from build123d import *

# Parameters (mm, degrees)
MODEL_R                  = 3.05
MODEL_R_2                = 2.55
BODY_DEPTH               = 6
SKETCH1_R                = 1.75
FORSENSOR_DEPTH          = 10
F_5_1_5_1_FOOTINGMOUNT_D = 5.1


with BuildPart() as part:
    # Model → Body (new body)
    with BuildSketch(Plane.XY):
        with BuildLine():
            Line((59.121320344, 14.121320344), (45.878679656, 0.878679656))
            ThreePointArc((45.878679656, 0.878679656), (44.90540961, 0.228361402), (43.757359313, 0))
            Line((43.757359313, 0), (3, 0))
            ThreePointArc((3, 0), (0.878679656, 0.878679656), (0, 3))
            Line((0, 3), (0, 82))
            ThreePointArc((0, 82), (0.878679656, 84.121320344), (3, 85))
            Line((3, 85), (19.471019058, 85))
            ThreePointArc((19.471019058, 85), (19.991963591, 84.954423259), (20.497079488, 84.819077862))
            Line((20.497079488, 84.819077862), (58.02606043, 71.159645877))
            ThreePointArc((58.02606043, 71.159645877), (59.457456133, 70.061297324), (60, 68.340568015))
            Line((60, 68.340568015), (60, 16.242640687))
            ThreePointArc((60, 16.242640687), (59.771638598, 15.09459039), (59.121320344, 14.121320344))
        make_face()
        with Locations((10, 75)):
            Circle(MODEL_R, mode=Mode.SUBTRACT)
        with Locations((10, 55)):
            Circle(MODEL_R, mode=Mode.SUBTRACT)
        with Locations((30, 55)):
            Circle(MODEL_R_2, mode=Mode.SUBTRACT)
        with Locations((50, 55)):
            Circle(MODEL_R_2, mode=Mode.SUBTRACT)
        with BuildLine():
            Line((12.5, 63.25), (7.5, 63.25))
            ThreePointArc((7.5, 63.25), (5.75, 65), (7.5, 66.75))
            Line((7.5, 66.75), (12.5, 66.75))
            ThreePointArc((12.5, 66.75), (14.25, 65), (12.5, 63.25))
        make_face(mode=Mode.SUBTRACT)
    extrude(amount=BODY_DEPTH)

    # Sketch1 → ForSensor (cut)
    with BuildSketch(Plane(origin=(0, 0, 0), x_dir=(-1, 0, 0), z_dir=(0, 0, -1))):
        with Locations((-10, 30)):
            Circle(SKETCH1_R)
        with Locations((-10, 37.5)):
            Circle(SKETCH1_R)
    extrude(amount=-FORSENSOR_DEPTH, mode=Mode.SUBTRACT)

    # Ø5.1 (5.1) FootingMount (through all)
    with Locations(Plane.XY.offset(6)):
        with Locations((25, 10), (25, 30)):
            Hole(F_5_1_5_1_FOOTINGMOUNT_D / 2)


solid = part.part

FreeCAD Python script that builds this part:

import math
import FreeCAD as App
import Part
import Sketcher
from FreeCAD import Vector
Q = App.Units.Quantity

doc = App.newDocument("Part")
body = doc.addObject("PartDesign::Body", "Body")

sketch1 = body.newObject("Sketcher::SketchObject", "Sketch")
sketch1.AttachmentSupport = (doc.getObject("XY_Plane"), [""])
sketch1.MapMode = "FlatFace"
sketch1.addGeometry([
    Part.LineSegment(Vector(45.9, 0.9, 0), Vector(59.1, 14.1, 0)),
    Part.ArcOfCircle(Part.Circle(Vector(57, 16.2, 0), Vector(0, 0, 1), 3), math.radians(-45), math.radians(0)),
    Part.LineSegment(Vector(60, 16.2, 0), Vector(60, 68.3, 0)),
    Part.ArcOfCircle(Part.Circle(Vector(57, 68.3, 0), Vector(0, 0, 1), 3), math.radians(0), math.radians(70)),
    Part.LineSegment(Vector(58, 71.2, 0), Vector(20.5, 84.8, 0)),
    Part.ArcOfCircle(Part.Circle(Vector(19.5, 82, 0), Vector(0, 0, 1), 3), math.radians(70), math.radians(90)),
    Part.LineSegment(Vector(19.5, 85, 0), Vector(3, 85, 0)),
    Part.ArcOfCircle(Part.Circle(Vector(3, 82, 0), Vector(0, 0, 1), 3), math.radians(90), math.radians(180)),
    Part.LineSegment(Vector(0, 82, 0), Vector(0, 3, 0)),
    Part.ArcOfCircle(Part.Circle(Vector(3, 3, 0), Vector(0, 0, 1), 3), math.radians(180), math.radians(270)),
    Part.LineSegment(Vector(3, 0, 0), Vector(43.8, 0, 0)),
    Part.ArcOfCircle(Part.Circle(Vector(43.8, 3, 0), Vector(0, 0, 1), 3), math.radians(-90), math.radians(-45)),
    Part.Circle(Vector(50, 55, 0), Vector(0, 0, 1), 2.5),
    Part.Circle(Vector(30, 55, 0), Vector(0, 0, 1), 2.5),
    Part.Circle(Vector(10, 55, 0), Vector(0, 0, 1), 3),
    Part.LineSegment(Vector(12.5, 63.2, 0), Vector(7.5, 63.2, 0)),
    Part.ArcOfCircle(Part.Circle(Vector(7.5, 65, 0), Vector(0, 0, 1), 1.8), math.radians(90), math.radians(270)),
    Part.LineSegment(Vector(7.5, 66.8, 0), Vector(12.5, 66.8, 0)),
    Part.ArcOfCircle(Part.Circle(Vector(12.5, 65, 0), Vector(0, 0, 1), 1.8), math.radians(-90), math.radians(90)),
    Part.Circle(Vector(10, 75, 0), Vector(0, 0, 1), 3),
], False)
sketch1.addConstraint([
    Sketcher.Constraint("Tangent", 0, 2, 1, 1),
    Sketcher.Constraint("Tangent", 1, 2, 2, 1),
    Sketcher.Constraint("Tangent", 2, 2, 3, 1),
    Sketcher.Constraint("Tangent", 3, 2, 4, 1),
    Sketcher.Constraint("Tangent", 4, 2, 5, 1),
    Sketcher.Constraint("Tangent", 5, 2, 6, 1),
    Sketcher.Constraint("Tangent", 6, 2, 7, 1),
    Sketcher.Constraint("Tangent", 7, 2, 8, 1),
    Sketcher.Constraint("Tangent", 8, 2, 9, 1),
    Sketcher.Constraint("Tangent", 9, 2, 10, 1),
    Sketcher.Constraint("Tangent", 10, 2, 11, 1),
    Sketcher.Constraint("Tangent", 11, 2, 0, 1),
    Sketcher.Constraint("Tangent", 15, 2, 16, 2),
    Sketcher.Constraint("Tangent", 16, 1, 17, 1),
    Sketcher.Constraint("Tangent", 17, 2, 18, 2),
    Sketcher.Constraint("Tangent", 18, 1, 15, 1),
    Sketcher.Constraint("Vertical", 2),
    Sketcher.Constraint("Horizontal", 6),
    Sketcher.Constraint("Vertical", 8),
    Sketcher.Constraint("Horizontal", 10),
    Sketcher.Constraint("Horizontal", 15),
    Sketcher.Constraint("Horizontal", 17),
    Sketcher.Constraint("Equal", 1, 3),
    Sketcher.Constraint("Equal", 3, 5),
    Sketcher.Constraint("Equal", 5, 7),
    Sketcher.Constraint("Equal", 7, 9),
    Sketcher.Constraint("Equal", 9, 11),
    Sketcher.Constraint("Equal", 12, 13),
    Sketcher.Constraint("Equal", 14, 19),
    Sketcher.Constraint("PointOnObject", 7, 2, -2),
    Sketcher.Constraint("PointOnObject", 9, 2, -1),
    Sketcher.Constraint("Horizontal", 12, 3, 13, 3),
    Sketcher.Constraint("Horizontal", 13, 3, 14, 3),
    Sketcher.Constraint("Vertical", 14, 3, 19, 3),
    Sketcher.Constraint("Radius", 1, 3.0),
    Sketcher.Constraint("Diameter", 12, 5.1),
    Sketcher.Constraint("Diameter", 14, 6.1),
    Sketcher.Constraint("DistanceX", 15, 2, 15, 1, 5.0),
    Sketcher.Constraint("DistanceY", 8, 2, 8, 1, 79.0),
    Sketcher.Constraint("Angle", 0, Q("45 deg")),
    Sketcher.Constraint("Angle", 4, Q("160 deg")),
    Sketcher.Constraint("Radius", 16, 1.75),
    Sketcher.Constraint("DistanceX", -1, 1, 1, 3, 57.0),
    Sketcher.Constraint("DistanceX", -1, 1, 12, 3, 50.0),
    Sketcher.Constraint("DistanceY", -1, 1, 12, 3, 55.0),
    Sketcher.Constraint("DistanceX", -1, 1, 13, 3, 30.0),
    Sketcher.Constraint("DistanceX", -1, 1, 14, 3, 10.0),
    Sketcher.Constraint("DistanceY", -1, 1, 16, 3, 65.0),
    Sketcher.Constraint("DistanceY", -1, 1, 19, 3, 75.0),
    Sketcher.Constraint("DistanceX", -1, 1, 16, 3, 7.5),
    Sketcher.Constraint("DistanceX", 6, 2, 6, 1, 16.471019),
    Sketcher.Constraint("DistanceX", 10, 1, 10, 2, 40.757359),
])
pad1 = body.newObject("PartDesign::Pad", "Pad")
pad1.Profile = sketch1
pad1.Length = 6

sketch2 = body.newObject("Sketcher::SketchObject", "Sketch001")
sketch2.AttachmentSupport = (doc.getObject("XY_Plane"), [""])
sketch2.MapMode = "FlatFace"
sketch2.addGeometry([
    Part.Circle(Vector(10, 30, 0), Vector(0, 0, 1), 1.8),
    Part.Circle(Vector(10, 37.5, 0), Vector(0, 0, 1), 1.8),
], False)
sketch2.addConstraint([
    Sketcher.Constraint("Equal", 0, 1),
    Sketcher.Constraint("Vertical", 0, 3, 1, 3),
    Sketcher.Constraint("Diameter", 0, 3.5),
    Sketcher.Constraint("DistanceX", -1, 1, 0, 3, 10.0),
    Sketcher.Constraint("DistanceY", -1, 1, 0, 3, 30.0),
    Sketcher.Constraint("DistanceY", -1, 1, 1, 3, 37.5),
])
pocket1 = body.newObject("PartDesign::Pocket", "Pocket")
pocket1.Profile = sketch2
pocket1.Length = 10
pocket1.Reversed = True

sketch3 = body.newObject("Sketcher::SketchObject", "Sketch002")
sketch3.AttachmentSupport = (doc.getObject("XY_Plane"), [""])
sketch3.MapMode = "FlatFace"
sketch3.AttachmentOffset = App.Placement(Vector(0, 0, 6), App.Rotation())
sketch3.addGeometry([
    Part.Circle(Vector(25, 10, 0), Vector(0, 0, 1), 2.5),
    Part.Circle(Vector(25, 30, 0), Vector(0, 0, 1), 2.5),
], False)
sketch3.addConstraint([
    Sketcher.Constraint("Equal", 0, 1),
    Sketcher.Constraint("Vertical", 0, 3, 1, 3),
    Sketcher.Constraint("Diameter", 0, 5.1),
    Sketcher.Constraint("DistanceX", -1, 1, 0, 3, 25.0),
    Sketcher.Constraint("DistanceY", -1, 1, 0, 3, 10.0),
    Sketcher.Constraint("DistanceY", -1, 1, 1, 3, 30.0),
])
doc.recompute()
hole = body.newObject("PartDesign::Hole", "Hole")
hole.Profile = sketch3
hole.ThreadType = "None"
hole.Diameter = 5.1
hole.DepthType = "ThroughAll"

doc.recompute()
